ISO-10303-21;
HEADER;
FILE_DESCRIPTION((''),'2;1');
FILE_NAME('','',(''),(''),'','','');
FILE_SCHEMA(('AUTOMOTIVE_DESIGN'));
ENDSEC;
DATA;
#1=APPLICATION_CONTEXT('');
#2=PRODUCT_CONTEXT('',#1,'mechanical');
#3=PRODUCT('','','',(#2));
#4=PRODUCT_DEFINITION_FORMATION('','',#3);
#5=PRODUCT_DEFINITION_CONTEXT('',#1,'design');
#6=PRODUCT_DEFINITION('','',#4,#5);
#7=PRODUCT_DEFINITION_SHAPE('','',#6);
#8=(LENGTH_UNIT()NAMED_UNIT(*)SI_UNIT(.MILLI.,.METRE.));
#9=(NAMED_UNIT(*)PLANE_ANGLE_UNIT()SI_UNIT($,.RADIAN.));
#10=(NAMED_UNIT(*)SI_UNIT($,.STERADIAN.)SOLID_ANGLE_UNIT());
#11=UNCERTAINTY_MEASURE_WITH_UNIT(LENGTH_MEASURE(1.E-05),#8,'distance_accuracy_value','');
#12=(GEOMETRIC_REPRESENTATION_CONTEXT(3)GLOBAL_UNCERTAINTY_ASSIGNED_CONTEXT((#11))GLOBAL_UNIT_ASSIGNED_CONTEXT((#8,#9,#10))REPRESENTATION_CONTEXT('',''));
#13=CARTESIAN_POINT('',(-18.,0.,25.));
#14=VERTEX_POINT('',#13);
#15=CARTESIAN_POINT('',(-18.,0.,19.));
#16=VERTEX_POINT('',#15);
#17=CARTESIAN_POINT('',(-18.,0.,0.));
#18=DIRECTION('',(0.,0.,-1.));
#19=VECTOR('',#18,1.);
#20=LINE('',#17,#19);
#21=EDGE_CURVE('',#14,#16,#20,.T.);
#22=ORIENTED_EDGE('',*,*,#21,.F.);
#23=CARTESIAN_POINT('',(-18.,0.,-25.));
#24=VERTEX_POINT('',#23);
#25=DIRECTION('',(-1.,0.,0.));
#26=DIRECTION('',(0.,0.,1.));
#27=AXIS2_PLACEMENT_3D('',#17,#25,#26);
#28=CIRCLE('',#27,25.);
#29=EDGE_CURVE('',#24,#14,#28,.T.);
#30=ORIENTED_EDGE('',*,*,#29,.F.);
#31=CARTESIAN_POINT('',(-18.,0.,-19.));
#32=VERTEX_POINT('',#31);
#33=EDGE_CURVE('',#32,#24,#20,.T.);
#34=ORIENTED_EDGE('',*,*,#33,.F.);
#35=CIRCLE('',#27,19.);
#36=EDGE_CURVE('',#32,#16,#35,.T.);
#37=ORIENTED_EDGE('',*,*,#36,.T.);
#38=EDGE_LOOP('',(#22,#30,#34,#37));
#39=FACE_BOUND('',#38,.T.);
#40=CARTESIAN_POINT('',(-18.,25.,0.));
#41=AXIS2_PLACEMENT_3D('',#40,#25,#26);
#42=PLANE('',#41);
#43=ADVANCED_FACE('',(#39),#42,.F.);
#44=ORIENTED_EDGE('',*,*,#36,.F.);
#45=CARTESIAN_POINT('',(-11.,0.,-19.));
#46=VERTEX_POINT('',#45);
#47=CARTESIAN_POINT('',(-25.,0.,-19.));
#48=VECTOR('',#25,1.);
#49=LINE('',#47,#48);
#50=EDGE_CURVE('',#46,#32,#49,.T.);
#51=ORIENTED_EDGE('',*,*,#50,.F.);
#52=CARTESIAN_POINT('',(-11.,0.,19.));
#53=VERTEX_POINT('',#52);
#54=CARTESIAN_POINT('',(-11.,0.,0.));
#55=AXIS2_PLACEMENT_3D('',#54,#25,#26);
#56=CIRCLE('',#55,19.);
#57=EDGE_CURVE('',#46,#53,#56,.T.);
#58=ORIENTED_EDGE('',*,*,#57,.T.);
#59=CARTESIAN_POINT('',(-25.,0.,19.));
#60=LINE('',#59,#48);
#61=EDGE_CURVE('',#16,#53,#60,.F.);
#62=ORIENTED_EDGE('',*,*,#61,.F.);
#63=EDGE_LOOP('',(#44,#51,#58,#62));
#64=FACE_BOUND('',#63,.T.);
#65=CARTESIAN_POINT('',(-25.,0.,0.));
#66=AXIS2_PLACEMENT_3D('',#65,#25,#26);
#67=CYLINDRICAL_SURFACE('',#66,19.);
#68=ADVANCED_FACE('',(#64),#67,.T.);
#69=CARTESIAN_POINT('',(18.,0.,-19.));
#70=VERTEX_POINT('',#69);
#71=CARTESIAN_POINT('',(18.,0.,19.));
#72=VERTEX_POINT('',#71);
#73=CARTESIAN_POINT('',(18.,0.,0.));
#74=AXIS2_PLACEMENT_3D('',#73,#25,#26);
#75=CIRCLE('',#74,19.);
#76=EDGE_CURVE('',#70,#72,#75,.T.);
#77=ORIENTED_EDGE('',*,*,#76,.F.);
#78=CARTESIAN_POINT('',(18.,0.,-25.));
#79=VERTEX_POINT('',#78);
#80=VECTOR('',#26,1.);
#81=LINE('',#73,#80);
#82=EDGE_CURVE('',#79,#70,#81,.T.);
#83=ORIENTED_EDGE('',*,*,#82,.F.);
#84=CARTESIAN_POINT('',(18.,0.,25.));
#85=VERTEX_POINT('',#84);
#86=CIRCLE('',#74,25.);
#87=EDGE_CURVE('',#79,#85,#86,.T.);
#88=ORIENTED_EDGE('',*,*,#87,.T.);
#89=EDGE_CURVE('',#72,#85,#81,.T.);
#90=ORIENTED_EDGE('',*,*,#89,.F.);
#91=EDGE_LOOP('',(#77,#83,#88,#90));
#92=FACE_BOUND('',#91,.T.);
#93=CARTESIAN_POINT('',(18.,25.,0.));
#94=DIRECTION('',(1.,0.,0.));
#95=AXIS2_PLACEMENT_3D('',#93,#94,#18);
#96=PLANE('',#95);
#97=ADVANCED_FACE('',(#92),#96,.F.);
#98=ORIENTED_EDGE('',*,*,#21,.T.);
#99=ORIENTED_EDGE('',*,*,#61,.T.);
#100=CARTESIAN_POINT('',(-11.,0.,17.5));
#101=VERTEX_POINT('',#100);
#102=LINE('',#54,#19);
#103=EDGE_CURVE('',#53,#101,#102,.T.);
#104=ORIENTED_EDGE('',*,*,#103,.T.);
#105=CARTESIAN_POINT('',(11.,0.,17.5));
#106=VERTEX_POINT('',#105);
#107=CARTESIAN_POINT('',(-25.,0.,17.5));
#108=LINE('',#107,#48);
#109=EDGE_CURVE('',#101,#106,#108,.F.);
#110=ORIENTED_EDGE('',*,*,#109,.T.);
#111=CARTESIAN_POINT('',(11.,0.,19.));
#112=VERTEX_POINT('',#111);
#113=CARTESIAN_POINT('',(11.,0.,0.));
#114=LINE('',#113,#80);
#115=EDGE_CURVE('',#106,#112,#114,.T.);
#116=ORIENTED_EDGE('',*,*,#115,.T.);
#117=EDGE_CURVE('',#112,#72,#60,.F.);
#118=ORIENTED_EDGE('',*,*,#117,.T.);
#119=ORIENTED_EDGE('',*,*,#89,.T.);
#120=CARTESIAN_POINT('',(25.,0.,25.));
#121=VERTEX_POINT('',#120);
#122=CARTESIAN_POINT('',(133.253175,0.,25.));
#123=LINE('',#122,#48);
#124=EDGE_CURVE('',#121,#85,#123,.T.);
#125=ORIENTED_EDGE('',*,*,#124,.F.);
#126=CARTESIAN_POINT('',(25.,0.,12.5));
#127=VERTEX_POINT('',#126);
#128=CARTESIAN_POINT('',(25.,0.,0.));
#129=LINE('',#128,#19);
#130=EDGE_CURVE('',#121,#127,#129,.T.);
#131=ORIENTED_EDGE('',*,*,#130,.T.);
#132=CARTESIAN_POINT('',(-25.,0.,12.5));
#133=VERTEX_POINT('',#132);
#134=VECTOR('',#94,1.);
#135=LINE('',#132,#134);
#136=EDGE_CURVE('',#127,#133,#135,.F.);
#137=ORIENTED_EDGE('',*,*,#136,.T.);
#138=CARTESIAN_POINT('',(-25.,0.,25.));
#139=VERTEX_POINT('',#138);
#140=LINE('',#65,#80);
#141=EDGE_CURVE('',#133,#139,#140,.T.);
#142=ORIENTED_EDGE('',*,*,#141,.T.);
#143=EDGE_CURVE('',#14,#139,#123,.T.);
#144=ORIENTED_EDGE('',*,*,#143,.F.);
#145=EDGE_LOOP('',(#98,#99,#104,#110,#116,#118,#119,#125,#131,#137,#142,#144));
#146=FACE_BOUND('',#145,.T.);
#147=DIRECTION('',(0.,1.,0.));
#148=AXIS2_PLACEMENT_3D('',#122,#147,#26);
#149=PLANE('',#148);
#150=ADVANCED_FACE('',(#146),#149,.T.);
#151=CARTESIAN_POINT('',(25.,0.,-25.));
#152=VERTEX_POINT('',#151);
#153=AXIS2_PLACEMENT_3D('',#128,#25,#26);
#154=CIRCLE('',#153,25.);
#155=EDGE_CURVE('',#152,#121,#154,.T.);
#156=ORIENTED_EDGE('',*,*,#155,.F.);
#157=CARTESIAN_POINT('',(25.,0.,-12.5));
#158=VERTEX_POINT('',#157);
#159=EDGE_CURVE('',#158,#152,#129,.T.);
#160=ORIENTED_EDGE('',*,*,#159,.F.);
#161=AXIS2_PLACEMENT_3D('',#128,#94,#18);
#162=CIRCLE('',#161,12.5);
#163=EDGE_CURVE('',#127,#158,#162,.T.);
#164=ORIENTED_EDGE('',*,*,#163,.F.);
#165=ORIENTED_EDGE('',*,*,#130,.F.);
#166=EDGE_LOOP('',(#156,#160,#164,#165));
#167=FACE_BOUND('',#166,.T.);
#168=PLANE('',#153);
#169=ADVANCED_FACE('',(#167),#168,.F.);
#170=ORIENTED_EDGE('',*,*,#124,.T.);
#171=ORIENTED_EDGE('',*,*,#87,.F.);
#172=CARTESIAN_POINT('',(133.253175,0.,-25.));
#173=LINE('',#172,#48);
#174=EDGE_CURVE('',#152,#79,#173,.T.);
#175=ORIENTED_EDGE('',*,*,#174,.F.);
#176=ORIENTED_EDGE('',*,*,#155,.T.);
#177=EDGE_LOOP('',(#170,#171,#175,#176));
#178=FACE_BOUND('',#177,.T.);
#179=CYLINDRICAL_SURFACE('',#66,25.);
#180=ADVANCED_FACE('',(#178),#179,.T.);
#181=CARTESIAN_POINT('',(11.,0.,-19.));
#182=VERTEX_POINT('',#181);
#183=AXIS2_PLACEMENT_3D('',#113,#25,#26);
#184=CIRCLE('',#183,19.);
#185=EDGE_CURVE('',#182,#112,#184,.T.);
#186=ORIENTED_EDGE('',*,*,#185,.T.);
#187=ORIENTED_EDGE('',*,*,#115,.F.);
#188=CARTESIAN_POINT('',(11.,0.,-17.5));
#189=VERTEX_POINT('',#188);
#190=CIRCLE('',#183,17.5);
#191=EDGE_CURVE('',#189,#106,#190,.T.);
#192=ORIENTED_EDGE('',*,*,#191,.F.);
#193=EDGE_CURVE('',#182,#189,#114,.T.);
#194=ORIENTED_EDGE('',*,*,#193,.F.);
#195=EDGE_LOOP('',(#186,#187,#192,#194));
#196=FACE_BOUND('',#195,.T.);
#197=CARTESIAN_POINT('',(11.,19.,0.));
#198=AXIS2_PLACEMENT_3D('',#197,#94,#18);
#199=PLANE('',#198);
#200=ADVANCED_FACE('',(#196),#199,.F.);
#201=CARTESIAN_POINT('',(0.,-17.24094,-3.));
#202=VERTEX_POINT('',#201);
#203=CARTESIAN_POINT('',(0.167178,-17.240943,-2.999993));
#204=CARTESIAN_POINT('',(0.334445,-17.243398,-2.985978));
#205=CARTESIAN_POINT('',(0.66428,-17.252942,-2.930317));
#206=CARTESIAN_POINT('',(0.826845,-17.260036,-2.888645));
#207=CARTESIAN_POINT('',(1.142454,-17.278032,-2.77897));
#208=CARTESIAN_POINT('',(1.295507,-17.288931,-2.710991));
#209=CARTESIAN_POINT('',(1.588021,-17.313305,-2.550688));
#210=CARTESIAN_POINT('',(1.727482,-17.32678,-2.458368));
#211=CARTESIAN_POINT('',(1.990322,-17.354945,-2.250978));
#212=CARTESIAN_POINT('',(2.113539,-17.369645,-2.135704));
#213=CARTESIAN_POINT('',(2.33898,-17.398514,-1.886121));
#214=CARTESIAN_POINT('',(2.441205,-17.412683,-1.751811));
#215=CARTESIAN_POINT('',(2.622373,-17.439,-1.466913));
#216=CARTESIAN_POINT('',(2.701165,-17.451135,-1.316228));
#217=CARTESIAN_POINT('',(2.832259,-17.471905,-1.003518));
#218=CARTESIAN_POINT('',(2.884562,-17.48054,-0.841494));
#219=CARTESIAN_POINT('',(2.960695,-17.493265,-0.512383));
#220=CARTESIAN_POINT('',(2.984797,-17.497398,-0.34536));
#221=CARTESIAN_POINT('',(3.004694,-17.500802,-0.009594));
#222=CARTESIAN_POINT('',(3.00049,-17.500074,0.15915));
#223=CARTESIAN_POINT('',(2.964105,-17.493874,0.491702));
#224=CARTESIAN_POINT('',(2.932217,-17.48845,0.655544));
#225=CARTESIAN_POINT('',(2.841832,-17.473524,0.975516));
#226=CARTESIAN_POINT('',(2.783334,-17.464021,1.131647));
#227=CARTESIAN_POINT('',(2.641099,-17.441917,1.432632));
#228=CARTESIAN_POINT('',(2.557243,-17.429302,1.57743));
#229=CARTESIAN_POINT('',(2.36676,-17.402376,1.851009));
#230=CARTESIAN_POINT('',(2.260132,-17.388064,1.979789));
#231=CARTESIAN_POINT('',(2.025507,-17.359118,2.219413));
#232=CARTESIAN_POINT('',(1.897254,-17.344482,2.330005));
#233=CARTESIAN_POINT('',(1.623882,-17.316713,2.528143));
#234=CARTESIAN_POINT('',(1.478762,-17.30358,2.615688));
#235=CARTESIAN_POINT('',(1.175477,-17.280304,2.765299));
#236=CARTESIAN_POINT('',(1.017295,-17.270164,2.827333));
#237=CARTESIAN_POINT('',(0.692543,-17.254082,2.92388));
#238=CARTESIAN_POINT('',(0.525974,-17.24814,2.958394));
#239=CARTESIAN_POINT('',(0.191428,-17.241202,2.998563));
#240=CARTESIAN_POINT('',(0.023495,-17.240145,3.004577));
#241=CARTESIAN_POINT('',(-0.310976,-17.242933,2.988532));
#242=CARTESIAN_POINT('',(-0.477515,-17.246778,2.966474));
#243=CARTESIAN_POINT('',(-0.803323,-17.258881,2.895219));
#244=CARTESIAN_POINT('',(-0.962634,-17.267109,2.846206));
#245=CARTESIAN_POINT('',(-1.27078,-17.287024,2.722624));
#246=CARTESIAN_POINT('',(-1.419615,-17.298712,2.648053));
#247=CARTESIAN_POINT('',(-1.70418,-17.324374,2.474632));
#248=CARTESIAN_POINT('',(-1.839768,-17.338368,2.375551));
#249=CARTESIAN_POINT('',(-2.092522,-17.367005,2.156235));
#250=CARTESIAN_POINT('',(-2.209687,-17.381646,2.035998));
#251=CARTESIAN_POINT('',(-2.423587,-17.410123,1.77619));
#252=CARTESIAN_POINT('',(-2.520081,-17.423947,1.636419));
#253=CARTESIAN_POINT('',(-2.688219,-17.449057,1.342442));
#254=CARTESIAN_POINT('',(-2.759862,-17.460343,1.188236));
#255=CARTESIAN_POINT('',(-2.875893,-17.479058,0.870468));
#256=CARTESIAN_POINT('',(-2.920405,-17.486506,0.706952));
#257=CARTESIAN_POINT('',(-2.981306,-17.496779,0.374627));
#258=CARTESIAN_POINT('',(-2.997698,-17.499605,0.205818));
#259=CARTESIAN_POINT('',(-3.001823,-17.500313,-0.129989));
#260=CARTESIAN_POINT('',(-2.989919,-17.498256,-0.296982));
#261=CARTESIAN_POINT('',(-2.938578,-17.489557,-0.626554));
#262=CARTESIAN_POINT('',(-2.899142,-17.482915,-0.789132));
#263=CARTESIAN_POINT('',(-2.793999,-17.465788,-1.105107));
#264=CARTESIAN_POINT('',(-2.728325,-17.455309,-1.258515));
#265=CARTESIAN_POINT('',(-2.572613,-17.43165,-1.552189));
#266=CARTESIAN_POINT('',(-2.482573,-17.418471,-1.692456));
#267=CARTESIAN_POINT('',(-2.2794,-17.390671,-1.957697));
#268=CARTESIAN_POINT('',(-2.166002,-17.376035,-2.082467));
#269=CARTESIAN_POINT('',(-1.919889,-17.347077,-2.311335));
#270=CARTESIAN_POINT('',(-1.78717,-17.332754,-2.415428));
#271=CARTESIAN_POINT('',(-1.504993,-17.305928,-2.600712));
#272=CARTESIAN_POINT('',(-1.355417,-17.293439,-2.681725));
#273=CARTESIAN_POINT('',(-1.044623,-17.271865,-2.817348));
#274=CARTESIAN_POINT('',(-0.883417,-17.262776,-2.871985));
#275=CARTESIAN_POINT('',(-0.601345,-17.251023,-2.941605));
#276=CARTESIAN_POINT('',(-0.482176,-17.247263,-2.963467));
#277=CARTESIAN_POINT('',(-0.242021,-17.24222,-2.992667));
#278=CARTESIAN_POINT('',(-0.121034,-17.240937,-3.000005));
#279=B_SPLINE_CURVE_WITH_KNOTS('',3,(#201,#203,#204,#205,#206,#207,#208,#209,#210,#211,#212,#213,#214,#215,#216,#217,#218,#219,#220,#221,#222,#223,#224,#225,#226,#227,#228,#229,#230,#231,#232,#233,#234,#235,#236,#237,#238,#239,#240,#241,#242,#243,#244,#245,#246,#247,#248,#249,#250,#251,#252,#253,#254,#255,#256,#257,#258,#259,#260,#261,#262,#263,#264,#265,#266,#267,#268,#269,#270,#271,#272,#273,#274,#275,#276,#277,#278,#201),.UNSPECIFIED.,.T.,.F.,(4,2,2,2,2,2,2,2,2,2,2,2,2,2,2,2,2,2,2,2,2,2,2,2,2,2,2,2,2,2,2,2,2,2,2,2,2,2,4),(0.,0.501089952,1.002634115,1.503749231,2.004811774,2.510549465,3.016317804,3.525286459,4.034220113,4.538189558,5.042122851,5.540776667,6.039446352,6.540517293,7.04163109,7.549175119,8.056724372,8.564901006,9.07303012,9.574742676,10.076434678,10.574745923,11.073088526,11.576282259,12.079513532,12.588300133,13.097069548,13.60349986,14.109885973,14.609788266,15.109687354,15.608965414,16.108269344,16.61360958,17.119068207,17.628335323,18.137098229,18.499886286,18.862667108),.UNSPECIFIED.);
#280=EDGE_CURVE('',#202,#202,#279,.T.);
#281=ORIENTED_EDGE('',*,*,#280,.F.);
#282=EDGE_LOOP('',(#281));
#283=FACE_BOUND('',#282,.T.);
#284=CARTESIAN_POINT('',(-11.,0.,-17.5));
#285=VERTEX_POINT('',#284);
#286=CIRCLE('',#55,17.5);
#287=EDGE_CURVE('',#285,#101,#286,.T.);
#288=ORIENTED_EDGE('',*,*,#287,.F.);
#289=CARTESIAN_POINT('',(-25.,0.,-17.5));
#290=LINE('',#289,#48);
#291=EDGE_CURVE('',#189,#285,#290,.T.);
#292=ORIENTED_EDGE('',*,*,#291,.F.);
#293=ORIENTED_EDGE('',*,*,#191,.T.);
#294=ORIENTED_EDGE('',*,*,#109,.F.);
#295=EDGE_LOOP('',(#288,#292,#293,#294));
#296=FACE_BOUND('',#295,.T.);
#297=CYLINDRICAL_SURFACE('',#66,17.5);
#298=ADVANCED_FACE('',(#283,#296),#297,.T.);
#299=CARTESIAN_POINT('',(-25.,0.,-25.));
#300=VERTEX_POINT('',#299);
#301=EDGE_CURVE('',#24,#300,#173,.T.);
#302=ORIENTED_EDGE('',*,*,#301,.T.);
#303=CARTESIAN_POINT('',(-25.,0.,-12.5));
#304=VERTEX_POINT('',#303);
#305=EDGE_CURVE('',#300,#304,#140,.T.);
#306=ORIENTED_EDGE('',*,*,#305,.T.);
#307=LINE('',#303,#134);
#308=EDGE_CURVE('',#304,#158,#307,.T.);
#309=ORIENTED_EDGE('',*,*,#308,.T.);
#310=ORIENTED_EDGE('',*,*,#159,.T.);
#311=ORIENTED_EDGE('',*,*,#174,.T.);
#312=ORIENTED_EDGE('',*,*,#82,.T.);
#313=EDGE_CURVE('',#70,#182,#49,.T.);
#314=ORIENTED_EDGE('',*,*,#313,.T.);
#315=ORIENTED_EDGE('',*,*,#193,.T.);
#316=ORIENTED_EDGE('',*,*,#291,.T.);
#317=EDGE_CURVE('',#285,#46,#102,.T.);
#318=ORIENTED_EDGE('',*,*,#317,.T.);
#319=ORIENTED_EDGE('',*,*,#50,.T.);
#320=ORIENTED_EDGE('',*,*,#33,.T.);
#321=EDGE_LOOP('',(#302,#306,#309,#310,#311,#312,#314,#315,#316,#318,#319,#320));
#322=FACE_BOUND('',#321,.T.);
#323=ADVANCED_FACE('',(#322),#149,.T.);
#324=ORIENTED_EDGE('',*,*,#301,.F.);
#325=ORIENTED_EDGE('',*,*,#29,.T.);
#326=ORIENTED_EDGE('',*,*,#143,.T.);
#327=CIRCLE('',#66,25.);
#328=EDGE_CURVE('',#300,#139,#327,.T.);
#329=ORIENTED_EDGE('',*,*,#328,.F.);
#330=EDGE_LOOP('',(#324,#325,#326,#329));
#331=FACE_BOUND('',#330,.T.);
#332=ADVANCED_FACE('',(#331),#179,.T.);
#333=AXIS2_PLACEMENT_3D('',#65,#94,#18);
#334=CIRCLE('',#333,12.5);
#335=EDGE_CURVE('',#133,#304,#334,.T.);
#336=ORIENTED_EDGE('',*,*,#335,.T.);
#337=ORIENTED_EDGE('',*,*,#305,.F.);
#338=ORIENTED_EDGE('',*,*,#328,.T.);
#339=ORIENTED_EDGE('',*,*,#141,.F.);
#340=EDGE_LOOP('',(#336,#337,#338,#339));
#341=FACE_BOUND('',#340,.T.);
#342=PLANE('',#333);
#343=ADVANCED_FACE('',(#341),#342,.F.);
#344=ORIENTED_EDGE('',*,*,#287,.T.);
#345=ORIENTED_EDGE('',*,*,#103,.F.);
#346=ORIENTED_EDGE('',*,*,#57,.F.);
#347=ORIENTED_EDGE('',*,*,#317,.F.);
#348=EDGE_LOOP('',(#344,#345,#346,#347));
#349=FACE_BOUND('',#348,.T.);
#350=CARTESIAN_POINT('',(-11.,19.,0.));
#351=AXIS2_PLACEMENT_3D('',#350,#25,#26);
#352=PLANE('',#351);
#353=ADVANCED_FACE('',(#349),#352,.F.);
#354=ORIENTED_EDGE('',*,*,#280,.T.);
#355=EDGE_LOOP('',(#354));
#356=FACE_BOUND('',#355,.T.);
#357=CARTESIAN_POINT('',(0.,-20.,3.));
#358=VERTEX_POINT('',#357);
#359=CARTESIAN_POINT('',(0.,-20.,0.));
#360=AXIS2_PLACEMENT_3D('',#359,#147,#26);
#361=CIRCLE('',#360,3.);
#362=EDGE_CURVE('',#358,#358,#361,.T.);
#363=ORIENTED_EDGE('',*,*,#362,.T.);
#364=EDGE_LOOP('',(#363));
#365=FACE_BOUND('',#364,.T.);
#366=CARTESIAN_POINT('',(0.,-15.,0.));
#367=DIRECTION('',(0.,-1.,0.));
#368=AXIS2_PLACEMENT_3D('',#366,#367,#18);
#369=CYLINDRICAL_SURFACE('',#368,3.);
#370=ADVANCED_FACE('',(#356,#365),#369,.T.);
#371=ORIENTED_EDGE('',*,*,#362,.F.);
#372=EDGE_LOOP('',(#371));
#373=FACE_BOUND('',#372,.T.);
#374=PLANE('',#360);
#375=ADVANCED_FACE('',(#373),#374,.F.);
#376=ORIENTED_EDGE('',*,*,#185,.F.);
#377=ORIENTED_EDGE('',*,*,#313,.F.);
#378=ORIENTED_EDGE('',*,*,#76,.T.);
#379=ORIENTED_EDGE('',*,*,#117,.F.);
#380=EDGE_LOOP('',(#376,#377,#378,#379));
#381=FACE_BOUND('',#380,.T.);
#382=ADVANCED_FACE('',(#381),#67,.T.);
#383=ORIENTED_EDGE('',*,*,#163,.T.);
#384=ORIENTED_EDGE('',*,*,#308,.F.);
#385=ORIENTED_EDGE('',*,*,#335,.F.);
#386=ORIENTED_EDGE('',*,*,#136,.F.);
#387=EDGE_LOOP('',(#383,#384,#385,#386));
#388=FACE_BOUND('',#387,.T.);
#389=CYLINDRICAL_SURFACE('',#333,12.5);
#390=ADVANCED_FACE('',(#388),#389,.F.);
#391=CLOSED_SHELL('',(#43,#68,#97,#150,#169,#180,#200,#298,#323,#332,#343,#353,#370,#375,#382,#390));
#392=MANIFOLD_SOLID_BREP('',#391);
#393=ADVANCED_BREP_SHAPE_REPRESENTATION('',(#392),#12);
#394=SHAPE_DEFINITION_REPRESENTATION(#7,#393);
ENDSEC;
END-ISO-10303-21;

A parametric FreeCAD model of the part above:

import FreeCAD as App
import Part
import Sketcher

V = App.Vector


def add_polygon(sketch, points):
    """Adds a closed chain of lines whose ends are joined by coincident constraints."""
    first, n = sketch.GeometryCount, len(points)
    for a, b in zip(points, points[1:] + points[:1]):
        sketch.addGeometry(Part.LineSegment(App.Vector(*a, 0), App.Vector(*b, 0)), False)
    for i in range(n):
        sketch.addConstraint(Sketcher.Constraint("Coincident", first + i, 2, first + (i + 1) % n, 1))

doc = App.newDocument("Part")
body = doc.addObject("PartDesign::Body", "Body")

# Sketch on XY plane
sketch1 = body.newObject("Sketcher::SketchObject", "Sketch")
sketch1.AttachmentSupport = (doc.getObject("XY_Plane"), [""])
sketch1.MapMode = "FlatFace"
add_polygon(sketch1, [(-25, 0), (25, 0), (25, 25), (18, 25), (18, 19), (11, 19), (11, 17.5), (-11, 17.5), (-11, 19), (-18, 19), (-18, 25), (-25, 25)])  # lines 0-11
sketch1.addConstraint([
    Sketcher.Constraint("Horizontal", 0),
    Sketcher.Constraint("Vertical", 1),
    Sketcher.Constraint("Horizontal", 2),
    Sketcher.Constraint("Vertical", 3),
    Sketcher.Constraint("Horizontal", 4),
    Sketcher.Constraint("Vertical", 5),
    Sketcher.Constraint("Horizontal", 6),
    Sketcher.Constraint("Vertical", 7),
    Sketcher.Constraint("Horizontal", 8),
    Sketcher.Constraint("Vertical", 9),
    Sketcher.Constraint("Horizontal", 10),
    Sketcher.Constraint("Vertical", 11),
    Sketcher.Constraint("Symmetric", 0, 2, 11, 2, -1, 1),
    Sketcher.Constraint("Symmetric", 4, 2, 7, 2, -2),
    Sketcher.Constraint("Symmetric", 2, 2, 9, 2, -2),
    Sketcher.Constraint("Equal", 2, 4),
    Sketcher.Constraint("DistanceX", 0, 1, 0, 2, 50.0),
    Sketcher.Constraint("DistanceX", 2, 2, 2, 1, 7.0),
    Sketcher.Constraint("DistanceY", 1, 1, 1, 2, 25.0),
    Sketcher.Constraint("DistanceY", 3, 2, 3, 1, 6.0),
    Sketcher.Constraint("DistanceY", 5, 2, 5, 1, 1.5),
])
revolution = body.newObject("PartDesign::Revolution", "Revolution")
revolution.Profile = sketch1
revolution.ReferenceAxis = (sketch1, ["H_Axis"])
revolution.Angle = 360

# Sketch on YZ plane
sketch2 = body.newObject("Sketcher::SketchObject", "Sketch001")
sketch2.AttachmentSupport = (doc.getObject("YZ_Plane"), [""])
sketch2.MapMode = "FlatFace"
sketch2.AttachmentOffset = App.Placement(V(0, 0, 25), App.Rotation())
sketch2.addGeometry(Part.Circle(V(0, 0, 0), V(0, 0, 1), 12), False)
sketch2.addConstraint([
    Sketcher.Constraint("Coincident", 0, 3, -1, 1),
    Sketcher.Constraint("Diameter", 0, 25.0),
])
pocket1 = body.newObject("PartDesign::Pocket", "Pocket")
pocket1.Profile = sketch2
pocket1.Type = "ThroughAll"

# Sketch on YZ plane
sketch3 = body.newObject("Sketcher::SketchObject", "Sketch002")
sketch3.AttachmentSupport = (doc.getObject("YZ_Plane"), [""])
sketch3.MapMode = "FlatFace"
sketch3.AttachmentOffset = App.Placement(V(0, 0, 25), App.Rotation())
add_polygon(sketch3, [(0, 147), (0, -147), (244, -147), (244, 147)])  # lines 0-3
sketch3.addConstraint([
    Sketcher.Constraint("Vertical", 0),
    Sketcher.Constraint("Horizontal", 1),
    Sketcher.Constraint("Vertical", 2),
    Sketcher.Constraint("Horizontal", 3),
    Sketcher.Constraint("Symmetric", 0, 2, 3, 2, -1, 1),
    Sketcher.Constraint("DistanceY", 0, 2, -1, 1, 146.803399),
    Sketcher.Constraint("DistanceX", 1, 1, 1, 2, 243.606798),
])
pocket2 = body.newObject("PartDesign::Pocket", "Pocket001")
pocket2.Profile = sketch3
pocket2.Type = "ThroughAll"
pocket2.Midplane = True

# Sketch on XZ plane
sketch4 = body.newObject("Sketcher::SketchObject", "Sketch003")
sketch4.AttachmentSupport = (doc.getObject("XZ_Plane"), [""])
sketch4.MapMode = "FlatFace"
sketch4.AttachmentOffset = App.Placement(V(0, 0, 17.5), App.Rotation())
sketch4.addGeometry(Part.Circle(V(0, 0, 0), V(0, 0, 1), 3), False)
sketch4.addConstraint([
    Sketcher.Constraint("Coincident", 0, 3, -1, 1),
    Sketcher.Constraint("Diameter", 0, 6.0),
])
pad1 = body.newObject("PartDesign::Pad", "Pad")
pad1.Profile = sketch4
pad1.Length = 5
pad1.Midplane = True

doc.recompute()
